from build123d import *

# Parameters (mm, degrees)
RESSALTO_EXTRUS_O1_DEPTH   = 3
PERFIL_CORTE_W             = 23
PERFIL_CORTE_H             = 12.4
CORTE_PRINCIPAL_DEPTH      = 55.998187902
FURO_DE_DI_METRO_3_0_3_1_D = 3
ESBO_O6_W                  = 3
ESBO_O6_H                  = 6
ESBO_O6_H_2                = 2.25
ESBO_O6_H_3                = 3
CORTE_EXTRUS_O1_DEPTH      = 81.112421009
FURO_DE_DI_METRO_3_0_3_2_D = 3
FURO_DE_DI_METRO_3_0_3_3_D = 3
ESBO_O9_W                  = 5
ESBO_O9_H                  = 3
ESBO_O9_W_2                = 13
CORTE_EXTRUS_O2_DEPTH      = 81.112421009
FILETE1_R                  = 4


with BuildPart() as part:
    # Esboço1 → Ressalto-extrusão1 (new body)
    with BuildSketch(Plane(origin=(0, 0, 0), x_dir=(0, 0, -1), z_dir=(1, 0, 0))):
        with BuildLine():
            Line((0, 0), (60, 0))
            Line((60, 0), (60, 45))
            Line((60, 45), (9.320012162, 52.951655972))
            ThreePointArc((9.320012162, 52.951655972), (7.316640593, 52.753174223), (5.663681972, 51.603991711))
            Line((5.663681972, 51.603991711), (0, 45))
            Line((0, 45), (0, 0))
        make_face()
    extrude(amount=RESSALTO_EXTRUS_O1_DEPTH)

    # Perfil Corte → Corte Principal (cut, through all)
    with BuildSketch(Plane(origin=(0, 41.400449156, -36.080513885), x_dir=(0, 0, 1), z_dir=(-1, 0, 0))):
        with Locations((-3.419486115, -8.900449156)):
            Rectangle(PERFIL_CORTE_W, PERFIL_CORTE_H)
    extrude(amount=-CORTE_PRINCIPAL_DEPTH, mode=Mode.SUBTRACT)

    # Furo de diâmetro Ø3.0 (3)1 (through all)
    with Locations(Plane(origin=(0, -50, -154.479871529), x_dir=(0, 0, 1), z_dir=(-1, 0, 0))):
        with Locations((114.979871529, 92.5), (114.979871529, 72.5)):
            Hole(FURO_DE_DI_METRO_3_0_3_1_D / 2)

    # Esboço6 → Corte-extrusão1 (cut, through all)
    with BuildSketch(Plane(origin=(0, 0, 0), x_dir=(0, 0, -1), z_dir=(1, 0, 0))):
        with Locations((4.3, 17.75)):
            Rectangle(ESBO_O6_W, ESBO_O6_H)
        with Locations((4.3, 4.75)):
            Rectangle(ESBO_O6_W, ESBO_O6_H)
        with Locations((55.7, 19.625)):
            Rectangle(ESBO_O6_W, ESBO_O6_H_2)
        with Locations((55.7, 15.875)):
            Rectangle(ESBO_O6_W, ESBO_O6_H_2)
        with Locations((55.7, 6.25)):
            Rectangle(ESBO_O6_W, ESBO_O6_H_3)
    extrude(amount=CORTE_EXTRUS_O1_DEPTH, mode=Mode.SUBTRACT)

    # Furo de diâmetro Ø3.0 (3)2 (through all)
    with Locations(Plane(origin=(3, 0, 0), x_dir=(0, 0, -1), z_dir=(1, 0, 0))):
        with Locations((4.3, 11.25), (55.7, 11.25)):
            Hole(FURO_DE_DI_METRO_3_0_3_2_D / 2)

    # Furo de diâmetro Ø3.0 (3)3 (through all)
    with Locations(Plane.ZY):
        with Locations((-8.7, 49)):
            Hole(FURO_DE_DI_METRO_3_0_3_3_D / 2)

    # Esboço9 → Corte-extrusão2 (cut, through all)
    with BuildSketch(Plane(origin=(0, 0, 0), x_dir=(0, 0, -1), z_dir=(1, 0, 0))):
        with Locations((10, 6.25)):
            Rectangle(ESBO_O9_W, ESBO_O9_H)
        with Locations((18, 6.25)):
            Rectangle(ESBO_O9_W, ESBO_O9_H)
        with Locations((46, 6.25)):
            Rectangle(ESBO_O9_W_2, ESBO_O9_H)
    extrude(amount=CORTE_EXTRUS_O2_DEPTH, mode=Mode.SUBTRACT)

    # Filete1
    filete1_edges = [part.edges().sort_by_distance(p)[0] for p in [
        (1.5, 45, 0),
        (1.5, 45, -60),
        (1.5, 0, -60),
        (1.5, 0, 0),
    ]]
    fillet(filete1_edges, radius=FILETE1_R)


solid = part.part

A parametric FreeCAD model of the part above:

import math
import FreeCAD as App
import Part
import Sketcher


def edges_at(feature, points):
    """Names of the edges that pass closest to the given points."""
    edges = feature.Shape.Edges
    near = lambda p: min(range(len(edges)), key=lambda i: edges[i].distToShape(Part.Vertex(*p))[0])
    return sorted({f"Edge{near(p) + 1}" for p in points})

doc = App.newDocument("Part")
body = doc.addObject("PartDesign::Body", "Body")

# Sketch on YZ plane
sketch1 = doc.addObject("Sketcher::SketchObject", "Sketch")
body.addObject(sketch1)
sketch1.AttachmentSupport = (doc.YZ_Plane, [""])
sketch1.MapMode = "FlatFace"
sketch1.addGeometry(Part.LineSegment(App.Vector(0, 0, 0), App.Vector(0, -60, 0)), False)
sketch1.addGeometry(Part.LineSegment(App.Vector(0, -60, 0), App.Vector(45, -60, 0)), False)
sketch1.addGeometry(Part.LineSegment(App.Vector(45, -60, 0), App.Vector(53, -9.3, 0)), False)
sketch1.addGeometry(Part.ArcOfCircle(Part.Circle(App.Vector(49, -8.7, 0), App.Vector(0, 0, 1), 4), math.radians(-9), math.radians(49)), False)
sketch1.addGeometry(Part.LineSegment(App.Vector(51.6, -5.7, 0), App.Vector(45, 0, 0)), False)
sketch1.addGeometry(Part.LineSegment(App.Vector(45, 0, 0), App.Vector(0, 0, 0)), False)
sketch1.addConstraint(Sketcher.Constraint("Coincident", 0, 2, 1, 1))
sketch1.addConstraint(Sketcher.Constraint("Coincident", 1, 2, 2, 1))
sketch1.addConstraint(Sketcher.Constraint("Tangent", 2, 2, 3, 1))
sketch1.addConstraint(Sketcher.Constraint("Tangent", 3, 2, 4, 1))
sketch1.addConstraint(Sketcher.Constraint("Coincident", 4, 2, 5, 1))
sketch1.addConstraint(Sketcher.Constraint("Coincident", 5, 2, 0, 1))
sketch1.addConstraint(Sketcher.Constraint("Vertical", 0))
sketch1.addConstraint(Sketcher.Constraint("Horizontal", 1))
sketch1.addConstraint(Sketcher.Constraint("Horizontal", 5))
sketch1.addConstraint(Sketcher.Constraint("Coincident", 5, 2, -1, 1))
sketch1.addConstraint(Sketcher.Constraint("Vertical", 1, 2, 4, 2))
sketch1.addConstraint(Sketcher.Constraint("Radius", 3, 4.0))
sketch1.addConstraint(Sketcher.Constraint("DistanceX", 1, 1, 1, 2, 45.0))
sketch1.addConstraint(Sketcher.Constraint("DistanceY", 0, 2, 0, 1, 60.0))
sketch1.addConstraint(Sketcher.Constraint("DistanceX", -1, 1, 3, 3, 49.0))
sketch1.addConstraint(Sketcher.Constraint("Distance", 2, 51.3))
pad1 = doc.addObject("PartDesign::Pad", "Pad")
body.addObject(pad1)
pad1.Profile = sketch1
pad1.Length = 3

# Sketch on YZ plane
sketch2 = doc.addObject("Sketcher::SketchObject", "Sketch001")
body.addObject(sketch2)
sketch2.AttachmentSupport = (doc.YZ_Plane, [""])
sketch2.MapMode = "FlatFace"
sketch2.addGeometry(Part.LineSegment(App.Vector(39, -51, 0), App.Vector(26, -51, 0)), False)
sketch2.addGeometry(Part.LineSegment(App.Vector(26, -51, 0), App.Vector(26, -28, 0)), False)
sketch2.addGeometry(Part.LineSegment(App.Vector(26, -28, 0), App.Vector(39, -28, 0)), False)
sketch2.addGeometry(Part.LineSegment(App.Vector(39, -28, 0), App.Vector(39, -51, 0)), False)
sketch2.addConstraint(Sketcher.Constraint("Coincident", 0, 2, 1, 1))
sketch2.addConstraint(Sketcher.Constraint("Coincident", 1, 2, 2, 1))
sketch2.addConstraint(Sketcher.Constraint("Coincident", 2, 2, 3, 1))
sketch2.addConstraint(Sketcher.Constraint("Coincident", 3, 2, 0, 1))
sketch2.addConstraint(Sketcher.Constraint("Horizontal", 0))
sketch2.addConstraint(Sketcher.Constraint("Vertical", 1))
sketch2.addConstraint(Sketcher.Constraint("Horizontal", 2))
sketch2.addConstraint(Sketcher.Constraint("Vertical", 3))
sketch2.addConstraint(Sketcher.Constraint("DistanceY", 1, 1, 1, 2, 23.0))
sketch2.addConstraint(Sketcher.Constraint("DistanceX", 0, 2, 0, 1, 12.4))
sketch2.addConstraint(Sketcher.Constraint("DistanceY", 0, 2, -1, 1, 51.0))
sketch2.addConstraint(Sketcher.Constraint("DistanceX", -1, 1, 0, 2, 26.3))
pocket1 = doc.addObject("PartDesign::Pocket", "Pocket")
body.addObject(pocket1)
pocket1.Profile = sketch2
pocket1.Type = "ThroughAll"
pocket1.Reversed = True

# Sketch on YZ plane
sketch3 = doc.addObject("Sketcher::SketchObject", "Sketch002")
body.addObject(sketch3)
sketch3.AttachmentSupport = (doc.YZ_Plane, [""])
sketch3.MapMode = "FlatFace"
sketch3.addGeometry(Part.Circle(App.Vector(42.5, -39.5, 0), App.Vector(0, 0, 1), 1.5), False)
sketch3.addGeometry(Part.Circle(App.Vector(22.5, -39.5, 0), App.Vector(0, 0, 1), 1.5), False)
sketch3.addConstraint(Sketcher.Constraint("Equal", 0, 1))
sketch3.addConstraint(Sketcher.Constraint("Horizontal", 0, 3, 1, 3))
sketch3.addConstraint(Sketcher.Constraint("Diameter", 0, 3.0))
sketch3.addConstraint(Sketcher.Constraint("DistanceX", 1, 3, 0, 3, 20.0))
sketch3.addConstraint(Sketcher.Constraint("DistanceX", -1, 1, 0, 3, 42.5))
sketch3.addConstraint(Sketcher.Constraint("DistanceY", 0, 3, -1, 1, 39.5))
doc.recompute()
hole = doc.addObject("PartDesign::Hole", "Hole")
body.addObject(hole)
hole.Profile = sketch3
hole.ThreadType = "None"
hole.Diameter = 3
hole.DepthType = "ThroughAll"
hole.Reversed = True

# Sketch on YZ plane
sketch4 = doc.addObject("Sketcher::SketchObject", "Sketch003")
body.addObject(sketch4)
sketch4.AttachmentSupport = (doc.YZ_Plane, [""])
sketch4.MapMode = "FlatFace"
sketch4.addGeometry(Part.LineSegment(App.Vector(20.8, -2.8, 0), App.Vector(14.8, -2.8, 0)), False)
sketch4.addGeometry(Part.LineSegment(App.Vector(14.8, -2.8, 0), App.Vector(14.8, -5.8, 0)), False)
sketch4.addGeometry(Part.LineSegment(App.Vector(14.8, -5.8, 0), App.Vector(20.8, -5.8, 0)), False)
sketch4.addGeometry(Part.LineSegment(App.Vector(20.8, -5.8, 0), App.Vector(20.8, -2.8, 0)), False)
sketch4.addGeometry(Part.LineSegment(App.Vector(7.8, -2.8, 0), App.Vector(1.8, -2.8, 0)), False)
sketch4.addGeometry(Part.LineSegment(App.Vector(1.8, -2.8, 0), App.Vector(1.8, -5.8, 0)), False)
sketch4.addGeometry(Part.LineSegment(App.Vector(1.8, -5.8, 0), App.Vector(7.8, -5.8, 0)), False)
sketch4.addGeometry(Part.LineSegment(App.Vector(7.8, -5.8, 0), App.Vector(7.8, -2.8, 0)), False)
sketch4.addGeometry(Part.LineSegment(App.Vector(20.8, -54.2, 0), App.Vector(18.5, -54.2, 0)), False)
sketch4.addGeometry(Part.LineSegment(App.Vector(18.5, -54.2, 0), App.Vector(18.5, -57.2, 0)), False)
sketch4.addGeometry(Part.LineSegment(App.Vector(18.5, -57.2, 0), App.Vector(20.8, -57.2, 0)), False)
sketch4.addGeometry(Part.LineSegment(App.Vector(20.8, -57.2, 0), App.Vector(20.8, -54.2, 0)), False)
sketch4.addGeometry(Part.LineSegment(App.Vector(17, -54.2, 0), App.Vector(14.8, -54.2, 0)), False)
sketch4.addGeometry(Part.LineSegment(App.Vector(14.8, -54.2, 0), App.Vector(14.8, -57.2, 0)), False)
sketch4.addGeometry(Part.LineSegment(App.Vector(14.8, -57.2, 0), App.Vector(17, -57.2, 0)), False)
sketch4.addGeometry(Part.LineSegment(App.Vector(17, -57.2, 0), App.Vector(17, -54.2, 0)), False)
sketch4.addGeometry(Part.LineSegment(App.Vector(7.8, -54.2, 0), App.Vector(4.8, -54.2, 0)), False)
sketch4.addGeometry(Part.LineSegment(App.Vector(4.8, -54.2, 0), App.Vector(4.8, -57.2, 0)), False)
sketch4.addGeometry(Part.LineSegment(App.Vector(4.8, -57.2, 0), App.Vector(7.8, -57.2, 0)), False)
sketch4.addGeometry(Part.LineSegment(App.Vector(7.8, -57.2, 0), App.Vector(7.8, -54.2, 0)), False)
sketch4.addConstraint(Sketcher.Constraint("Coincident", 0, 2, 1, 1))
sketch4.addConstraint(Sketcher.Constraint("Coincident", 1, 2, 2, 1))
sketch4.addConstraint(Sketcher.Constraint("Coincident", 2, 2, 3, 1))
sketch4.addConstraint(Sketcher.Constraint("Coincident", 3, 2, 0, 1))
sketch4.addConstraint(Sketcher.Constraint("Coincident", 4, 2, 5, 1))
sketch4.addConstraint(Sketcher.Constraint("Coincident", 5, 2, 6, 1))
sketch4.addConstraint(Sketcher.Constraint("Coincident", 6, 2, 7, 1))
sketch4.addConstraint(Sketcher.Constraint("Coincident", 7, 2, 4, 1))
sketch4.addConstraint(Sketcher.Constraint("Coincident", 8, 2, 9, 1))
sketch4.addConstraint(Sketcher.Constraint("Coincident", 9, 2, 10, 1))
sketch4.addConstraint(Sketcher.Constraint("Coincident", 10, 2, 11, 1))
sketch4.addConstraint(Sketcher.Constraint("Coincident", 11, 2, 8, 1))
sketch4.addConstraint(Sketcher.Constraint("Coincident", 12, 2, 13, 1))
sketch4.addConstraint(Sketcher.Constraint("Coincident", 13, 2, 14, 1))
sketch4.addConstraint(Sketcher.Constraint("Coincident", 14, 2, 15, 1))
sketch4.addConstraint(Sketcher.Constraint("Coincident", 15, 2, 12, 1))
sketch4.addConstraint(Sketcher.Constraint("Coincident", 16, 2, 17, 1))
sketch4.addConstraint(Sketcher.Constraint("Coincident", 17, 2, 18, 1))
sketch4.addConstraint(Sketcher.Constraint("Coincident", 18, 2, 19, 1))
sketch4.addConstraint(Sketcher.Constraint("Coincident", 19, 2, 16, 1))
sketch4.addConstraint(Sketcher.Constraint("Horizontal", 0))
sketch4.addConstraint(Sketcher.Constraint("Vertical", 1))
sketch4.addConstraint(Sketcher.Constraint("Horizontal", 2))
sketch4.addConstraint(Sketcher.Constraint("Vertical", 3))
sketch4.addConstraint(Sketcher.Constraint("Horizontal", 4))
sketch4.addConstraint(Sketcher.Constraint("Vertical", 5))
sketch4.addConstraint(Sketcher.Constraint("Horizontal", 6))
sketch4.addConstraint(Sketcher.Constraint("Vertical", 7))
sketch4.addConstraint(Sketcher.Constraint("Horizontal", 8))
sketch4.addConstraint(Sketcher.Constraint("Vertical", 9))
sketch4.addConstraint(Sketcher.Constraint("Horizontal", 10))
sketch4.addConstraint(Sketcher.Constraint("Vertical", 11))
sketch4.addConstraint(Sketcher.Constraint("Horizontal", 12))
sketch4.addConstraint(Sketcher.Constraint("Vertical", 13))
sketch4.addConstraint(Sketcher.Constraint("Horizontal", 14))
sketch4.addConstraint(Sketcher.Constraint("Vertical", 15))
sketch4.addConstraint(Sketcher.Constraint("Horizontal", 16))
sketch4.addConstraint(Sketcher.Constraint("Vertical", 17))
sketch4.addConstraint(Sketcher.Constraint("Horizontal", 18))
sketch4.addConstraint(Sketcher.Constraint("Vertical", 19))
sketch4.addConstraint(Sketcher.Constraint("Horizontal", 3, 2, 4, 2))
sketch4.addConstraint(Sketcher.Constraint("Horizontal", 2, 2, 5, 2))
sketch4.addConstraint(Sketcher.Constraint("Horizontal", 11, 2, 12, 2))
sketch4.addConstraint(Sketcher.Constraint("Horizontal", 10, 2, 13, 2))
sketch4.addConstraint(Sketcher.Constraint("Horizontal", 15, 2, 16, 2))
sketch4.addConstraint(Sketcher.Constraint("Horizontal", 14, 2, 17, 2))
sketch4.addConstraint(Sketcher.Constraint("Vertical", 3, 2, 10, 2))
sketch4.addConstraint(Sketcher.Constraint("Vertical", 1, 2, 12, 2))
sketch4.addConstraint(Sketcher.Constraint("Vertical", 7, 2, 18, 2))
sketch4.addConstraint(Sketcher.Constraint("Equal", 2, 4))
sketch4.addConstraint(Sketcher.Constraint("Equal", 10, 12))
sketch4.addConstraint(Sketcher.Constraint("Equal", 18, 1))
sketch4.addConstraint(Sketcher.Constraint("Equal", 7, 9))
sketch4.addConstraint(Sketcher.Constraint("DistanceX", 0, 2, 0, 1, 6.0))
sketch4.addConstraint(Sketcher.Constraint("DistanceX", 16, 2, 16, 1, 3.0))
sketch4.addConstraint(Sketcher.Constraint("DistanceX", -1, 1, 14, 2, 17.0))
sketch4.addConstraint(Sketcher.Constraint("DistanceX", 4, 2, 0, 2, 13.0))
sketch4.addConstraint(Sketcher.Constraint("DistanceX", 8, 2, 8, 1, 2.25))
sketch4.addConstraint(Sketcher.Constraint("DistanceY", 0, 2, -1, 1, 2.8))
sketch4.addConstraint(Sketcher.Constraint("DistanceY", 8, 2, -1, 1, 54.2))
pocket2 = doc.addObject("PartDesign::Pocket", "Pocket001")
body.addObject(pocket2)
pocket2.Profile = sketch4
pocket2.Type = "ThroughAll"
pocket2.Reversed = True

# Sketch on YZ plane
sketch5 = doc.addObject("Sketcher::SketchObject", "Sketch004")
body.addObject(sketch5)
sketch5.AttachmentSupport = (doc.YZ_Plane, [""])
sketch5.MapMode = "FlatFace"
sketch5.AttachmentOffset = App.Placement(App.Vector(0, 0, 3), App.Rotation())
sketch5.addGeometry(Part.Circle(App.Vector(11.2, -4.3, 0), App.Vector(0, 0, 1), 1.5), False)
sketch5.addGeometry(Part.Circle(App.Vector(11.2, -55.7, 0), App.Vector(0, 0, 1), 1.5), False)
sketch5.addConstraint(Sketcher.Constraint("Equal", 0, 1))
sketch5.addConstraint(Sketcher.Constraint("Vertical", 0, 3, 1, 3))
sketch5.addConstraint(Sketcher.Constraint("Diameter", 0, 3.0))
sketch5.addConstraint(Sketcher.Constraint("DistanceY", 0, 3, -1, 1, 4.3))
sketch5.addConstraint(Sketcher.Constraint("DistanceY", 1, 3, -1, 1, 55.7))
sketch5.addConstraint(Sketcher.Constraint("DistanceX", -1, 1, 0, 3, 11.25))
doc.recompute()
hole2 = doc.addObject("PartDesign::Hole", "Hole001")
body.addObject(hole2)
hole2.Profile = sketch5
hole2.ThreadType = "None"
hole2.Diameter = 3
hole2.DepthType = "ThroughAll"

# Sketch on YZ plane
sketch6 = doc.addObject("Sketcher::SketchObject", "Sketch005")
body.addObject(sketch6)
sketch6.AttachmentSupport = (doc.YZ_Plane, [""])
sketch6.MapMode = "FlatFace"
sketch6.addGeometry(Part.Circle(App.Vector(49, -8.7, 0), App.Vector(0, 0, 1), 1.5), False)
sketch6.addConstraint(Sketcher.Constraint("Diameter", 0, 3.0))
sketch6.addConstraint(Sketcher.Constraint("DistanceX", -1, 1, 0, 3, 49.0))
sketch6.addConstraint(Sketcher.Constraint("DistanceY", 0, 3, -1, 1, 8.7))
doc.recompute()
hole3 = doc.addObject("PartDesign::Hole", "Hole002")
body.addObject(hole3)
hole3.Profile = sketch6
hole3.ThreadType = "None"
hole3.Diameter = 3
hole3.DepthType = "ThroughAll"
hole3.Reversed = True

# Sketch on YZ plane
sketch7 = doc.addObject("Sketcher::SketchObject", "Sketch006")
body.addObject(sketch7)
sketch7.AttachmentSupport = (doc.YZ_Plane, [""])
sketch7.MapMode = "FlatFace"
sketch7.addGeometry(Part.LineSegment(App.Vector(7.8, -7.5, 0), App.Vector(4.8, -7.5, 0)), False)
sketch7.addGeometry(Part.LineSegment(App.Vector(4.8, -7.5, 0), App.Vector(4.8, -12.5, 0)), False)
sketch7.addGeometry(Part.LineSegment(App.Vector(4.8, -12.5, 0), App.Vector(7.8, -12.5, 0)), False)
sketch7.addGeometry(Part.LineSegment(App.Vector(7.8, -12.5, 0), App.Vector(7.8, -7.5, 0)), False)
sketch7.addGeometry(Part.LineSegment(App.Vector(7.8, -15.5, 0), App.Vector(4.8, -15.5, 0)), False)
sketch7.addGeometry(Part.LineSegment(App.Vector(4.8, -15.5, 0), App.Vector(4.8, -20.5, 0)), False)
sketch7.addGeometry(Part.LineSegment(App.Vector(4.8, -20.5, 0), App.Vector(7.8, -20.5, 0)), False)
sketch7.addGeometry(Part.LineSegment(App.Vector(7.8, -20.5, 0), App.Vector(7.8, -15.5, 0)), False)
sketch7.addGeometry(Part.LineSegment(App.Vector(7.8, -39.5, 0), App.Vector(4.8, -39.5, 0)), False)
sketch7.addGeometry(Part.LineSegment(App.Vector(4.8, -39.5, 0), App.Vector(4.8, -52.5, 0)), False)
sketch7.addGeometry(Part.LineSegment(App.Vector(4.8, -52.5, 0), App.Vector(7.8, -52.5, 0)), False)
sketch7.addGeometry(Part.LineSegment(App.Vector(7.8, -52.5, 0), App.Vector(7.8, -39.5, 0)), False)
sketch7.addConstraint(Sketcher.Constraint("Coincident", 0, 2, 1, 1))
sketch7.addConstraint(Sketcher.Constraint("Coincident", 1, 2, 2, 1))
sketch7.addConstraint(Sketcher.Constraint("Coincident", 2, 2, 3, 1))
sketch7.addConstraint(Sketcher.Constraint("Coincident", 3, 2, 0, 1))
sketch7.addConstraint(Sketcher.Constraint("Coincident", 4, 2, 5, 1))
sketch7.addConstraint(Sketcher.Constraint("Coincident", 5, 2, 6, 1))
sketch7.addConstraint(Sketcher.Constraint("Coincident", 6, 2, 7, 1))
sketch7.addConstraint(Sketcher.Constraint("Coincident", 7, 2, 4, 1))
sketch7.addConstraint(Sketcher.Constraint("Coincident", 8, 2, 9, 1))
sketch7.addConstraint(Sketcher.Constraint("Coincident", 9, 2, 10, 1))
sketch7.addConstraint(Sketcher.Constraint("Coincident", 10, 2, 11, 1))
sketch7.addConstraint(Sketcher.Constraint("Coincident", 11, 2, 8, 1))
sketch7.addConstraint(Sketcher.Constraint("Horizontal", 0))
sketch7.addConstraint(Sketcher.Constraint("Vertical", 1))
sketch7.addConstraint(Sketcher.Constraint("Horizontal", 2))
sketch7.addConstraint(Sketcher.Constraint("Vertical", 3))
sketch7.addConstraint(Sketcher.Constraint("Horizontal", 4))
sketch7.addConstraint(Sketcher.Constraint("Vertical", 5))
sketch7.addConstraint(Sketcher.Constraint("Horizontal", 6))
sketch7.addConstraint(Sketcher.Constraint("Vertical", 7))
sketch7.addConstraint(Sketcher.Constraint("Horizontal", 8))
sketch7.addConstraint(Sketcher.Constraint("Vertical", 9))
sketch7.addConstraint(Sketcher.Constraint("Horizontal", 10))
sketch7.addConstraint(Sketcher.Constraint("Vertical", 11))
sketch7.addConstraint(Sketcher.Constraint("Vertical", 1, 2, 4, 2))
sketch7.addConstraint(Sketcher.Constraint("Vertical", 3, 2, 6, 2))
sketch7.addConstraint(Sketcher.Constraint("Vertical", 5, 2, 8, 2))
sketch7.addConstraint(Sketcher.Constraint("Vertical", 7, 2, 10, 2))
sketch7.addConstraint(Sketcher.Constraint("Equal", 3, 5))
sketch7.addConstraint(Sketcher.Constraint("DistanceX", 0, 2, 0, 1, 3.0))
sketch7.addConstraint(Sketcher.Constraint("DistanceY", 1, 2, 1, 1, 5.0))
sketch7.addConstraint(Sketcher.Constraint("DistanceY", 9, 2, 9, 1, 13.0))
sketch7.addConstraint(Sketcher.Constraint("DistanceY", 4, 2, 1, 2, 3.0))
sketch7.addConstraint(Sketcher.Constraint("DistanceY", 8, 2, 5, 2, 19.0))
sketch7.addConstraint(Sketcher.Constraint("DistanceY", 0, 2, -1, 1, 7.5))
sketch7.addConstraint(Sketcher.Constraint("DistanceX", -1, 1, 0, 2, 4.75))
pocket3 = doc.addObject("PartDesign::Pocket", "Pocket002")
body.addObject(pocket3)
pocket3.Profile = sketch7
pocket3.Type = "ThroughAll"
pocket3.Reversed = True
doc.recompute()

fillet = doc.addObject("PartDesign::Fillet", "Fillet")
body.addObject(fillet)
fillet.Base = (pocket3, edges_at(pocket3, [
    (1.5, 45, 0),
    (1.5, 45, -60),
    (1.5, 0, -60),
    (1.5, 0, 0),
]))
fillet.Radius = 4

doc.recompute()
